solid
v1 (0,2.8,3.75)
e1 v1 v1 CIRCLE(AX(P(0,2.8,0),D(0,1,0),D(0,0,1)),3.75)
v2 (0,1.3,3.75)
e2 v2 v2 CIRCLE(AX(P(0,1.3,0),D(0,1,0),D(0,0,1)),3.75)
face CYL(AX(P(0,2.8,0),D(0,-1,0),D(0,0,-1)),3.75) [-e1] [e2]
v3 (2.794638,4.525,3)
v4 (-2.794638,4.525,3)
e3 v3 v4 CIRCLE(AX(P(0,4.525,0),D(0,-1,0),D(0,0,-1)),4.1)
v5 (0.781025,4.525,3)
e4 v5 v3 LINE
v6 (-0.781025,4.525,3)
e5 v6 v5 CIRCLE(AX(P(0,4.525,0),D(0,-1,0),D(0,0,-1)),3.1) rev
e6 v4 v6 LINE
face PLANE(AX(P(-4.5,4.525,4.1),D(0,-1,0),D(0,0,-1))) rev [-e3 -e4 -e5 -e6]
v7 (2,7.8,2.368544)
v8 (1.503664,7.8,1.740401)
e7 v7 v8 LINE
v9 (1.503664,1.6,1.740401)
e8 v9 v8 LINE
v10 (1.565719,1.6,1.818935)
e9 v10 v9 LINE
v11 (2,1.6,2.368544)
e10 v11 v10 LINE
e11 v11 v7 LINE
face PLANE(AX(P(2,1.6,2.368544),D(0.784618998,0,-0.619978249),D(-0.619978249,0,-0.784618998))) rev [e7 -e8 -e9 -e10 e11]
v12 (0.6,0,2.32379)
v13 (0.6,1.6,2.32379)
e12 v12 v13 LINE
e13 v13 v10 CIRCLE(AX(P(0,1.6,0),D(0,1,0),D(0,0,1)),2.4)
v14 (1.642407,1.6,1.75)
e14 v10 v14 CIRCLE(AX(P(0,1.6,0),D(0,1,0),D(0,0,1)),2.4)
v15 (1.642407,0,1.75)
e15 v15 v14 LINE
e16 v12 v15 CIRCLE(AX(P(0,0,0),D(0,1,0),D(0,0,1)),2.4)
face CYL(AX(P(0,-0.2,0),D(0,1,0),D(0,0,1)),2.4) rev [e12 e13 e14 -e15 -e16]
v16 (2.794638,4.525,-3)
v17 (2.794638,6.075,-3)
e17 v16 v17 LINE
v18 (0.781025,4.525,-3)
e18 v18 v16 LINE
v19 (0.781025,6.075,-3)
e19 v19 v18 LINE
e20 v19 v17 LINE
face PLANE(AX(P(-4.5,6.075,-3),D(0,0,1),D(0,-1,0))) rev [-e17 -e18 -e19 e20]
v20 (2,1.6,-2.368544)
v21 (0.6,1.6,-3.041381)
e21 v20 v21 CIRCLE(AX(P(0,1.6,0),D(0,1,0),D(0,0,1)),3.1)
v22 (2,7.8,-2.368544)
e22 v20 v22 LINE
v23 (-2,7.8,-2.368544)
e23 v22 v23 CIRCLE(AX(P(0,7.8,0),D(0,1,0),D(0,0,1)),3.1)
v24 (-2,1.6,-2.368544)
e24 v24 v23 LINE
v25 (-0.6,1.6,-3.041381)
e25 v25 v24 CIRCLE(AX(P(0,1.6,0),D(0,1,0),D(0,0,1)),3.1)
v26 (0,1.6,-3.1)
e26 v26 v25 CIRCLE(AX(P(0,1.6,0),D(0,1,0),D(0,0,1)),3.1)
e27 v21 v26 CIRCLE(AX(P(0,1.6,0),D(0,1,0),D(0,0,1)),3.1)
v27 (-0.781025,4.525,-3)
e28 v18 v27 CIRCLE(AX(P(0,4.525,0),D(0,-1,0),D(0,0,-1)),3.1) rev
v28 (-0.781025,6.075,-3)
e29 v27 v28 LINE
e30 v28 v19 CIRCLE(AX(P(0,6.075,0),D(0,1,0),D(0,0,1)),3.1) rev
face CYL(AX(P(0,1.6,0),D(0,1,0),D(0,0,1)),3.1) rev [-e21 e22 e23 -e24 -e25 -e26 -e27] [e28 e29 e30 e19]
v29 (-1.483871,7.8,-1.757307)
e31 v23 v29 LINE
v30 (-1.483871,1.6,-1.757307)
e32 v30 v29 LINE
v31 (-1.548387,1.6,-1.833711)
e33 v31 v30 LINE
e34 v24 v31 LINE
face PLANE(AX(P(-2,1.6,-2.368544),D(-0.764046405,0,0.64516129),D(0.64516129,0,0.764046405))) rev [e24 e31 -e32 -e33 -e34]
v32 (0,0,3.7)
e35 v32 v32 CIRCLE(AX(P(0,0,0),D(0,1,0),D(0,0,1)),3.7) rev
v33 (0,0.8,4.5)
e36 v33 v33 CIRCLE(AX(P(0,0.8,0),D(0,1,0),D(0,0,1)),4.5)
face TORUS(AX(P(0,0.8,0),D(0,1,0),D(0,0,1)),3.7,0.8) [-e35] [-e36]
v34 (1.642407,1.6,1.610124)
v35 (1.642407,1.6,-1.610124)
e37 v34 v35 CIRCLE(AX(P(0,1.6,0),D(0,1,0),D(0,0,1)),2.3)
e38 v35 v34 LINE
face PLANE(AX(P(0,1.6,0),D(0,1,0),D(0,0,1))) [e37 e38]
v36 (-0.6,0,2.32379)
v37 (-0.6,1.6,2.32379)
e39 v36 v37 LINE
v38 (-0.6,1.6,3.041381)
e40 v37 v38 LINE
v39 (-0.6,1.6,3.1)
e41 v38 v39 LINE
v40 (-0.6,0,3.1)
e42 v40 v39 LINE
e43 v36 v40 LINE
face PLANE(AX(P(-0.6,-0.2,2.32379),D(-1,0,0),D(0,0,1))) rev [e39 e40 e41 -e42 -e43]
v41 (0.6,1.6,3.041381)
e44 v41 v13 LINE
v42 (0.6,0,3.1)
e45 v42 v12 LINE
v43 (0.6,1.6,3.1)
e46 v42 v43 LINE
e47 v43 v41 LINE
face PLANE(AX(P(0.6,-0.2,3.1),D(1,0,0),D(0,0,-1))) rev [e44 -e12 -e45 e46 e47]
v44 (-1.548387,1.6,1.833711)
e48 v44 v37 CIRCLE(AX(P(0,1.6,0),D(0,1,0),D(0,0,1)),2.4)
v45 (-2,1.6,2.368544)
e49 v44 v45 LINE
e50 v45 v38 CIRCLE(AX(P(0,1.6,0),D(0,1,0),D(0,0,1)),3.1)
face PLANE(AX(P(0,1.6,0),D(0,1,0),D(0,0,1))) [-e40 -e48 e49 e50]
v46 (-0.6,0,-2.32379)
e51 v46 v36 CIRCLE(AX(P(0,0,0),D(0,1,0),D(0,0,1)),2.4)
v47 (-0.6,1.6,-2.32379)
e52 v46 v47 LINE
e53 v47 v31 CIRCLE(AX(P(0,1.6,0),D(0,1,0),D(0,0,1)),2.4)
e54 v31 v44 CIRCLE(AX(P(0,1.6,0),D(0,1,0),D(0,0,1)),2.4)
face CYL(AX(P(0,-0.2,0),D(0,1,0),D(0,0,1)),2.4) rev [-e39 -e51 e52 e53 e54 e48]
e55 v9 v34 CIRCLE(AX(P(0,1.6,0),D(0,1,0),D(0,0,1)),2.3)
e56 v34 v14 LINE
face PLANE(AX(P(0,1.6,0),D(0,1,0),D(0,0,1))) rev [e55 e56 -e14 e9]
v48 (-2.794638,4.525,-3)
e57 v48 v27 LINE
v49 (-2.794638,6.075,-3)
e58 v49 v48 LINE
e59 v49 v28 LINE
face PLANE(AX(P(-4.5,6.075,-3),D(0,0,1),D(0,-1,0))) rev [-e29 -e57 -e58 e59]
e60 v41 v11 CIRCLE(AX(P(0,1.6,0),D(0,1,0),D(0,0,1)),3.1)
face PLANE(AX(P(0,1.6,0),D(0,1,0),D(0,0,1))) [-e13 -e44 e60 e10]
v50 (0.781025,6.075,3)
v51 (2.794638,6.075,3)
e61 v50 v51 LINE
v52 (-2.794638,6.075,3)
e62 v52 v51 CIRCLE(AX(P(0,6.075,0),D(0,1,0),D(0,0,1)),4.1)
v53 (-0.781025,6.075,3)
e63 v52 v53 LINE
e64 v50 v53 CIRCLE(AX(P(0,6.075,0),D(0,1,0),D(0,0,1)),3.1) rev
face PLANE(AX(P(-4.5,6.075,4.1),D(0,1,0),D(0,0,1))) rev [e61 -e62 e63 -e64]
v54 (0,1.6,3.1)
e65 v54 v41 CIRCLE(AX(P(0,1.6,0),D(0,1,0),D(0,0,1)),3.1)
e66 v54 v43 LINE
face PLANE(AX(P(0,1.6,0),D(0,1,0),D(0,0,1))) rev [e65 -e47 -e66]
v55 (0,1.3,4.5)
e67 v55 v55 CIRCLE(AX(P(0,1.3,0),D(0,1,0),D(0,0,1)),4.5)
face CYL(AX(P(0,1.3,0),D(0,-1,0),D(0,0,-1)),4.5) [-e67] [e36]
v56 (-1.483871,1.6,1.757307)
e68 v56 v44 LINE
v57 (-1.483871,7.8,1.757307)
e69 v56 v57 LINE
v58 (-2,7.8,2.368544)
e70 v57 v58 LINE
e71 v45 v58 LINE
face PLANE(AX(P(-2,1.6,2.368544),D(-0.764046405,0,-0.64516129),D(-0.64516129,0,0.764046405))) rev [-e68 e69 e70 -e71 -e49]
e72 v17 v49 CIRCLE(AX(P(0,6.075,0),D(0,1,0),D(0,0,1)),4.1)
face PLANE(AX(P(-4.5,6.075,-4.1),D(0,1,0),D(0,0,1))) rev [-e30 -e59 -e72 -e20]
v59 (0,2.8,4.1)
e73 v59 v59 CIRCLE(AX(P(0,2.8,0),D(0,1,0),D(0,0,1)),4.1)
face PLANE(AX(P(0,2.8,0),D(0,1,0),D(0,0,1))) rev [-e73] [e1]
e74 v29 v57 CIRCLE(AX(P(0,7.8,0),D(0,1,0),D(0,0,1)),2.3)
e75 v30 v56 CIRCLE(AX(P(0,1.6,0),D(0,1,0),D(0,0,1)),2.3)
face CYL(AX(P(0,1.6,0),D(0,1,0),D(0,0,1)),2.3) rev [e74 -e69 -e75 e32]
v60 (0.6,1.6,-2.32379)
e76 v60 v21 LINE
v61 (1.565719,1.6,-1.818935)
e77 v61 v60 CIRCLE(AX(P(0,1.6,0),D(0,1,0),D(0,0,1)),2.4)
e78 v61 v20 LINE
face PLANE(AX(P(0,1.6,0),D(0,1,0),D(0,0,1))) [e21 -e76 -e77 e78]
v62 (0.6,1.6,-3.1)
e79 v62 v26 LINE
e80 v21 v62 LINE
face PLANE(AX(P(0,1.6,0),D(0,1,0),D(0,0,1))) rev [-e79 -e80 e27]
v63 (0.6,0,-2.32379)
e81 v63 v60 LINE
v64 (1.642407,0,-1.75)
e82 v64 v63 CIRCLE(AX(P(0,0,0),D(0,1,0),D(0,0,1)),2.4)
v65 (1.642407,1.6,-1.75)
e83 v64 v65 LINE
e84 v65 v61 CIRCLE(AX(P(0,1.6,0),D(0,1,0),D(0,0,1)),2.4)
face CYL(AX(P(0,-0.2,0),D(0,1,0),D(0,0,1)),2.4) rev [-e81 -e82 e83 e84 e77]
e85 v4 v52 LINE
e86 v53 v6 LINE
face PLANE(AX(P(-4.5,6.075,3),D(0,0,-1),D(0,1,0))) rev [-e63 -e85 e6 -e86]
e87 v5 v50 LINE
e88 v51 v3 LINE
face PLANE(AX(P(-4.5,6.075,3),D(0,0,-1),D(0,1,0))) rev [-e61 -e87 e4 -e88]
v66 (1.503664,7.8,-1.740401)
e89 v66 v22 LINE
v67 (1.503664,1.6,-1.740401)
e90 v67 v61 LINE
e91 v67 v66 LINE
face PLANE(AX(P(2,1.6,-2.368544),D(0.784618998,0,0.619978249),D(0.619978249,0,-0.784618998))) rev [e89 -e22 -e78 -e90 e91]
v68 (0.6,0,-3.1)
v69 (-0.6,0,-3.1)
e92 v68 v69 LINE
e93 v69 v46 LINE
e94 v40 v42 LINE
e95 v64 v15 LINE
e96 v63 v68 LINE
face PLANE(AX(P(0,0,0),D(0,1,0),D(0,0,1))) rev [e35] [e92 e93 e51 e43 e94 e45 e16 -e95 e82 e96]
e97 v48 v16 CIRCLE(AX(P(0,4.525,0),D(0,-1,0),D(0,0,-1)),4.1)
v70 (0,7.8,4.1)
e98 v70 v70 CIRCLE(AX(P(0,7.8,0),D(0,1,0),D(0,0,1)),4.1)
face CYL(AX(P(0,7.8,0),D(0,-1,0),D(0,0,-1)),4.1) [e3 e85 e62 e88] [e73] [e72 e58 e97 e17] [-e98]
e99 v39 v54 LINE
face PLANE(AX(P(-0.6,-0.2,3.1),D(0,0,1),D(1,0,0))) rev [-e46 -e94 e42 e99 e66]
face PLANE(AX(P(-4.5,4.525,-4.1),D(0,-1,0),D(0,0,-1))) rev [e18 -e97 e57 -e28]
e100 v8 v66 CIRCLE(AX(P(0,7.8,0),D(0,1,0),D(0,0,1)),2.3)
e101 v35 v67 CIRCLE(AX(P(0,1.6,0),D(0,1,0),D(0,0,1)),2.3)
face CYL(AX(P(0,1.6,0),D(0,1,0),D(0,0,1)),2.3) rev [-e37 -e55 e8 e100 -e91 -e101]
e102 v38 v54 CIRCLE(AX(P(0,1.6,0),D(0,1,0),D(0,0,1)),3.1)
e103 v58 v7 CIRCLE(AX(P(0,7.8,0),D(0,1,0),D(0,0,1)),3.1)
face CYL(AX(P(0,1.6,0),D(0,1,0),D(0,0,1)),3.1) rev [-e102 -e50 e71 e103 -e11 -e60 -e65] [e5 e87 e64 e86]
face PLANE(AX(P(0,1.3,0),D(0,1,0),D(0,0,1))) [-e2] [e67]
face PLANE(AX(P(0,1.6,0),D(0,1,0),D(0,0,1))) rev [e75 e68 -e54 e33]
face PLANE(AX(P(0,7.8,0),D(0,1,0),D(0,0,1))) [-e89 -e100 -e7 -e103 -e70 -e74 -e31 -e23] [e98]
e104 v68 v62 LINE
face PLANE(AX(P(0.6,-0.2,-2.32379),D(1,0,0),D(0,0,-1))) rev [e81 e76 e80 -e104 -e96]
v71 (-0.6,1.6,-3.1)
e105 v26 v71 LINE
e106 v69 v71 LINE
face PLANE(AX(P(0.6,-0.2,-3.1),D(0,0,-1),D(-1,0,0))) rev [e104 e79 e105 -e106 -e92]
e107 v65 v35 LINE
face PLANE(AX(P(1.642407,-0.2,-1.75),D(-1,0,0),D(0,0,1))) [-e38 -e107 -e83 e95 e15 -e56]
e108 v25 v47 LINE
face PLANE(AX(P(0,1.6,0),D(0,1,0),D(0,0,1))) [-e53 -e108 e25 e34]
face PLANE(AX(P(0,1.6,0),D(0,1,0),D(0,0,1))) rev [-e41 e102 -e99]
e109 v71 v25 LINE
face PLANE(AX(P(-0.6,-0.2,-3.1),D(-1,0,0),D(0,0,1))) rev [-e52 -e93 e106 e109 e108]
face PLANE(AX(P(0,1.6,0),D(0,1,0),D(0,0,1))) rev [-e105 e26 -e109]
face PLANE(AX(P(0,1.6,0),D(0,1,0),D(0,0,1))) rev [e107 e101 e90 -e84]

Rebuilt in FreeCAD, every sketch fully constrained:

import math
import FreeCAD as App
import Part
import Sketcher


def edges_at(feature, points):
    """Names of the edges that pass closest to the given points."""
    edges = feature.Shape.Edges
    near = lambda p: min(range(len(edges)), key=lambda i: edges[i].distToShape(Part.Vertex(*p))[0])
    return sorted({f"Edge{near(p) + 1}" for p in points})


def add_polygon(sketch, points):
    """Adds a closed chain of lines whose ends are joined by coincident constraints."""
    first, n = sketch.GeometryCount, len(points)
    for a, b in zip(points, points[1:] + points[:1]):
        sketch.addGeometry(Part.LineSegment(App.Vector(*a, 0), App.Vector(*b, 0)), False)
    for i in range(n):
        sketch.addConstraint(Sketcher.Constraint("Coincident", first + i, 2, first + (i + 1) % n, 1))

doc = App.newDocument("Part")
body = doc.addObject("PartDesign::Body", "Body")

# Sketch on XZ plane
sketch1 = body.newObject("Sketcher::SketchObject", "Sketch")
sketch1.AttachmentSupport = (doc.getObject("XZ_Plane"), [""])
sketch1.MapMode = "FlatFace"
sketch1.addGeometry(Part.Circle(App.Vector(0, 0, 0), App.Vector(0, 0, 1), 4.5), False)
sketch1.addConstraint(Sketcher.Constraint("Coincident", 0, 3, -1, 1))
sketch1.addConstraint(Sketcher.Constraint("Diameter", 0, 9.0))
pad1 = body.newObject("PartDesign::Pad", "Pad")
pad1.Profile = sketch1
pad1.Length = 1.3
pad1.Reversed = True

# Sketch on XZ plane
sketch2 = body.newObject("Sketcher::SketchObject", "Sketch001")
sketch2.AttachmentSupport = (doc.getObject("XZ_Plane"), [""])
sketch2.MapMode = "FlatFace"
sketch2.AttachmentOffset = App.Placement(App.Vector(0, 0, -1.3), App.Rotation())
sketch2.addGeometry(Part.Circle(App.Vector(0, 0, 0), App.Vector(0, 0, 1), 3.8), False)
sketch2.addConstraint(Sketcher.Constraint("Coincident", 0, 3, -1, 1))
sketch2.addConstraint(Sketcher.Constraint("Diameter", 0, 7.5))
pad2 = body.newObject("PartDesign::Pad", "Pad001")
pad2.Profile = sketch2
pad2.Length = 1.5
pad2.Reversed = True

# Sketch on XZ plane
sketch3 = body.newObject("Sketcher::SketchObject", "Sketch002")
sketch3.AttachmentSupport = (doc.getObject("XZ_Plane"), [""])
sketch3.MapMode = "FlatFace"
sketch3.AttachmentOffset = App.Placement(App.Vector(0, 0, -2.8), App.Rotation())
sketch3.addGeometry(Part.Circle(App.Vector(0, 0, 0), App.Vector(0, 0, 1), 4.1), False)
sketch3.addConstraint(Sketcher.Constraint("Coincident", 0, 3, -1, 1))
sketch3.addConstraint(Sketcher.Constraint("Diameter", 0, 8.2))
pad3 = body.newObject("PartDesign::Pad", "Pad002")
pad3.Profile = sketch3
pad3.Length = 5
pad3.Reversed = True

# Sketch on XZ plane
sketch4 = body.newObject("Sketcher::SketchObject", "Sketch003")
sketch4.AttachmentSupport = (doc.getObject("XZ_Plane"), [""])
sketch4.MapMode = "FlatFace"
sketch4.AttachmentOffset = App.Placement(App.Vector(0, 0, -7.8), App.Rotation())
sketch4.addGeometry(Part.LineSegment(App.Vector(-2, -2.4, 0), App.Vector(-1.5, -1.8, 0)), False)
sketch4.addGeometry(Part.ArcOfCircle(Part.Circle(App.Vector(0, 0, 0), App.Vector(0, 0, 1), 2.3), math.radians(130), math.radians(230)), False)
sketch4.addGeometry(Part.LineSegment(App.Vector(-1.5, 1.8, 0), App.Vector(-2, 2.4, 0)), False)
sketch4.addGeometry(Part.ArcOfCircle(Part.Circle(App.Vector(0, 0, 0), App.Vector(0, 0, 1), 3.1), math.radians(50), math.radians(130)), False)
sketch4.addGeometry(Part.LineSegment(App.Vector(2, 2.4, 0), App.Vector(1.5, 1.7, 0)), False)
sketch4.addGeometry(Part.ArcOfCircle(Part.Circle(App.Vector(0, 0, 0), App.Vector(0, 0, 1), 2.3), math.radians(-49), math.radians(49)), False)
sketch4.addGeometry(Part.LineSegment(App.Vector(1.5, -1.7, 0), App.Vector(2, -2.4, 0)), False)
sketch4.addGeometry(Part.ArcOfCircle(Part.Circle(App.Vector(0, 0, 0), App.Vector(0, 0, 1), 3.1), math.radians(-130), math.radians(-50)), False)
sketch4.addConstraint(Sketcher.Constraint("Coincident", 0, 2, 1, 2))
sketch4.addConstraint(Sketcher.Constraint("Coincident", 1, 1, 2, 1))
sketch4.addConstraint(Sketcher.Constraint("Coincident", 2, 2, 3, 2))
sketch4.addConstraint(Sketcher.Constraint("Coincident", 3, 1, 4, 1))
sketch4.addConstraint(Sketcher.Constraint("Coincident", 4, 2, 5, 2))
sketch4.addConstraint(Sketcher.Constraint("Coincident", 5, 1, 6, 1))
sketch4.addConstraint(Sketcher.Constraint("Coincident", 6, 2, 7, 2))
sketch4.addConstraint(Sketcher.Constraint("Coincident", 7, 1, 0, 1))
sketch4.addConstraint(Sketcher.Constraint("Coincident", 1, 3, -1, 1))
sketch4.addConstraint(Sketcher.Constraint("Coincident", 3, 3, -1, 1))
sketch4.addConstraint(Sketcher.Constraint("Coincident", 5, 3, -1, 1))
sketch4.addConstraint(Sketcher.Constraint("Coincident", 7, 3, -1, 1))
sketch4.addConstraint(Sketcher.Constraint("Equal", 1, 5))
sketch4.addConstraint(Sketcher.Constraint("Equal", 3, 7))
sketch4.addConstraint(Sketcher.Constraint("Horizontal", 2, 2, 3, 1))
sketch4.addConstraint(Sketcher.Constraint("Horizontal", 6, 2, 7, 1))
sketch4.addConstraint(Sketcher.Constraint("Vertical", 0, 2, 1, 1))
sketch4.addConstraint(Sketcher.Constraint("Vertical", 4, 2, 5, 1))
sketch4.addConstraint(Sketcher.Constraint("Vertical", 3, 1, 6, 2))
sketch4.addConstraint(Sketcher.Constraint("Radius", 1, 2.3))
sketch4.addConstraint(Sketcher.Constraint("Radius", 3, 3.1))
sketch4.addConstraint(Sketcher.Constraint("DistanceX", 2, 2, -1, 1, 2.0))
sketch4.addConstraint(Sketcher.Constraint("DistanceY", -1, 1, 4, 2, 1.740401))
sketch4.addConstraint(Sketcher.Constraint("DistanceX", 0, 2, -1, 1, 1.483871))
pocket1 = body.newObject("PartDesign::Pocket", "Pocket")
pocket1.Profile = sketch4
pocket1.Length = 6.2
pocket1.Reversed = True

# Sketch on XZ plane
sketch5 = body.newObject("Sketcher::SketchObject", "Sketch004")
sketch5.AttachmentSupport = (doc.getObject("XZ_Plane"), [""])
sketch5.MapMode = "FlatFace"
sketch5.AttachmentOffset = App.Placement(App.Vector(0, 0, -1.6), App.Rotation())
sketch5.addGeometry(Part.LineSegment(App.Vector(1.6, 1.8, 0), App.Vector(1.6, -1.8, 0)), False)
sketch5.addGeometry(Part.ArcOfCircle(Part.Circle(App.Vector(0, 0, 0), App.Vector(0, 0, 1), 2.4), math.radians(-76), math.radians(-47)), False)
sketch5.addGeometry(Part.LineSegment(App.Vector(0.6, -2.3, 0), App.Vector(0.6, -3.1, 0)), False)
sketch5.addGeometry(Part.LineSegment(App.Vector(0.6, -3.1, 0), App.Vector(-0.6, -3.1, 0)), False)
sketch5.addGeometry(Part.LineSegment(App.Vector(-0.6, -3.1, 0), App.Vector(-0.6, -2.3, 0)), False)
sketch5.addGeometry(Part.ArcOfCircle(Part.Circle(App.Vector(0, 0, 0), App.Vector(0, 0, 1), 2.4), math.radians(104), math.radians(256)), False)
sketch5.addGeometry(Part.LineSegment(App.Vector(-0.6, 2.3, 0), App.Vector(-0.6, 3.1, 0)), False)
sketch5.addGeometry(Part.LineSegment(App.Vector(-0.6, 3.1, 0), App.Vector(0.6, 3.1, 0)), False)
sketch5.addGeometry(Part.LineSegment(App.Vector(0.6, 3.1, 0), App.Vector(0.6, 2.3, 0)), False)
sketch5.addGeometry(Part.ArcOfCircle(Part.Circle(App.Vector(0, 0, 0), App.Vector(0, 0, 1), 2.4), math.radians(47), math.radians(76)), False)
sketch5.addConstraint(Sketcher.Constraint("Coincident", 0, 2, 1, 2))
sketch5.addConstraint(Sketcher.Constraint("Coincident", 1, 1, 2, 1))
sketch5.addConstraint(Sketcher.Constraint("Coincident", 2, 2, 3, 1))
sketch5.addConstraint(Sketcher.Constraint("Coincident", 3, 2, 4, 1))
sketch5.addConstraint(Sketcher.Constraint("Coincident", 4, 2, 5, 2))
sketch5.addConstraint(Sketcher.Constraint("Coincident", 5, 1, 6, 1))
sketch5.addConstraint(Sketcher.Constraint("Coincident", 6, 2, 7, 1))
sketch5.addConstraint(Sketcher.Constraint("Coincident", 7, 2, 8, 1))
sketch5.addConstraint(Sketcher.Constraint("Coincident", 8, 2, 9, 2))
sketch5.addConstraint(Sketcher.Constraint("Coincident", 9, 1, 0, 1))
sketch5.addConstraint(Sketcher.Constraint("Vertical", 0))
sketch5.addConstraint(Sketcher.Constraint("Vertical", 2))
sketch5.addConstraint(Sketcher.Constraint("Horizontal", 3))
sketch5.addConstraint(Sketcher.Constraint("Vertical", 4))
sketch5.addConstraint(Sketcher.Constraint("Vertical", 6))
sketch5.addConstraint(Sketcher.Constraint("Horizontal", 7))
sketch5.addConstraint(Sketcher.Constraint("Vertical", 8))
sketch5.addConstraint(Sketcher.Constraint("Coincident", 1, 3, -1, 1))
sketch5.addConstraint(Sketcher.Constraint("Coincident", 5, 3, -1, 1))
sketch5.addConstraint(Sketcher.Constraint("Coincident", 9, 3, -1, 1))
sketch5.addConstraint(Sketcher.Constraint("Equal", 1, 5))
sketch5.addConstraint(Sketcher.Constraint("Equal", 5, 9))
sketch5.addConstraint(Sketcher.Constraint("Symmetric", 2, 2, 6, 2, -1, 1))
sketch5.addConstraint(Sketcher.Constraint("Horizontal", 1, 1, 4, 2))
sketch5.addConstraint(Sketcher.Constraint("Horizontal", 5, 1, 8, 2))
sketch5.addConstraint(Sketcher.Constraint("Radius", 1, 2.4))
sketch5.addConstraint(Sketcher.Constraint("DistanceX", 3, 2, 3, 1, 1.2))
sketch5.addConstraint(Sketcher.Constraint("DistanceY", 0, 2, 0, 1, 3.5))
sketch5.addConstraint(Sketcher.Constraint("DistanceY", 2, 2, -1, 1, 3.1))
pocket2 = body.newObject("PartDesign::Pocket", "Pocket001")
pocket2.Profile = sketch5
pocket2.Length = 1.8
pocket2.Reversed = True
doc.recompute()

fillet = body.newObject("PartDesign::Fillet", "Fillet")
fillet.Base = (pocket2, edges_at(pocket2, [(0, 0, -4.5)]))
fillet.Radius = 0.8

# Sketch on YZ plane
sketch6 = body.newObject("Sketcher::SketchObject", "Sketch005")
sketch6.AttachmentSupport = (doc.getObject("YZ_Plane"), [""])
sketch6.MapMode = "FlatFace"
add_polygon(sketch6, [(6.1, 4.1), (4.5, 4.1), (4.5, 3), (6.1, 3)])  # lines 0-3
add_polygon(sketch6, [(6.1, -3), (4.5, -3), (4.5, -4.1), (6.1, -4.1)])  # lines 4-7
sketch6.addConstraint(Sketcher.Constraint("Horizontal", 0))
sketch6.addConstraint(Sketcher.Constraint("Vertical", 1))
sketch6.addConstraint(Sketcher.Constraint("Horizontal", 2))
sketch6.addConstraint(Sketcher.Constraint("Vertical", 3))
sketch6.addConstraint(Sketcher.Constraint("Horizontal", 4))
sketch6.addConstraint(Sketcher.Constraint("Vertical", 5))
sketch6.addConstraint(Sketcher.Constraint("Horizontal", 6))
sketch6.addConstraint(Sketcher.Constraint("Vertical", 7))
sketch6.addConstraint(Sketcher.Constraint("Symmetric", 1, 2, 4, 2, -1))
sketch6.addConstraint(Sketcher.Constraint("Symmetric", 3, 2, 6, 2, -1))
sketch6.addConstraint(Sketcher.Constraint("DistanceY", 1, 2, 1, 1, 1.1))
sketch6.addConstraint(Sketcher.Constraint("DistanceY", -1, 1, 1, 2, 3.0))
sketch6.addConstraint(Sketcher.Constraint("DistanceX", 0, 2, 0, 1, 1.55))
sketch6.addConstraint(Sketcher.Constraint("DistanceX", -1, 1, 0, 2, 4.525))
pocket3 = body.newObject("PartDesign::Pocket", "Pocket002")
pocket3.Profile = sketch6
pocket3.Type = "ThroughAll"
pocket3.Midplane = True

doc.recompute()
